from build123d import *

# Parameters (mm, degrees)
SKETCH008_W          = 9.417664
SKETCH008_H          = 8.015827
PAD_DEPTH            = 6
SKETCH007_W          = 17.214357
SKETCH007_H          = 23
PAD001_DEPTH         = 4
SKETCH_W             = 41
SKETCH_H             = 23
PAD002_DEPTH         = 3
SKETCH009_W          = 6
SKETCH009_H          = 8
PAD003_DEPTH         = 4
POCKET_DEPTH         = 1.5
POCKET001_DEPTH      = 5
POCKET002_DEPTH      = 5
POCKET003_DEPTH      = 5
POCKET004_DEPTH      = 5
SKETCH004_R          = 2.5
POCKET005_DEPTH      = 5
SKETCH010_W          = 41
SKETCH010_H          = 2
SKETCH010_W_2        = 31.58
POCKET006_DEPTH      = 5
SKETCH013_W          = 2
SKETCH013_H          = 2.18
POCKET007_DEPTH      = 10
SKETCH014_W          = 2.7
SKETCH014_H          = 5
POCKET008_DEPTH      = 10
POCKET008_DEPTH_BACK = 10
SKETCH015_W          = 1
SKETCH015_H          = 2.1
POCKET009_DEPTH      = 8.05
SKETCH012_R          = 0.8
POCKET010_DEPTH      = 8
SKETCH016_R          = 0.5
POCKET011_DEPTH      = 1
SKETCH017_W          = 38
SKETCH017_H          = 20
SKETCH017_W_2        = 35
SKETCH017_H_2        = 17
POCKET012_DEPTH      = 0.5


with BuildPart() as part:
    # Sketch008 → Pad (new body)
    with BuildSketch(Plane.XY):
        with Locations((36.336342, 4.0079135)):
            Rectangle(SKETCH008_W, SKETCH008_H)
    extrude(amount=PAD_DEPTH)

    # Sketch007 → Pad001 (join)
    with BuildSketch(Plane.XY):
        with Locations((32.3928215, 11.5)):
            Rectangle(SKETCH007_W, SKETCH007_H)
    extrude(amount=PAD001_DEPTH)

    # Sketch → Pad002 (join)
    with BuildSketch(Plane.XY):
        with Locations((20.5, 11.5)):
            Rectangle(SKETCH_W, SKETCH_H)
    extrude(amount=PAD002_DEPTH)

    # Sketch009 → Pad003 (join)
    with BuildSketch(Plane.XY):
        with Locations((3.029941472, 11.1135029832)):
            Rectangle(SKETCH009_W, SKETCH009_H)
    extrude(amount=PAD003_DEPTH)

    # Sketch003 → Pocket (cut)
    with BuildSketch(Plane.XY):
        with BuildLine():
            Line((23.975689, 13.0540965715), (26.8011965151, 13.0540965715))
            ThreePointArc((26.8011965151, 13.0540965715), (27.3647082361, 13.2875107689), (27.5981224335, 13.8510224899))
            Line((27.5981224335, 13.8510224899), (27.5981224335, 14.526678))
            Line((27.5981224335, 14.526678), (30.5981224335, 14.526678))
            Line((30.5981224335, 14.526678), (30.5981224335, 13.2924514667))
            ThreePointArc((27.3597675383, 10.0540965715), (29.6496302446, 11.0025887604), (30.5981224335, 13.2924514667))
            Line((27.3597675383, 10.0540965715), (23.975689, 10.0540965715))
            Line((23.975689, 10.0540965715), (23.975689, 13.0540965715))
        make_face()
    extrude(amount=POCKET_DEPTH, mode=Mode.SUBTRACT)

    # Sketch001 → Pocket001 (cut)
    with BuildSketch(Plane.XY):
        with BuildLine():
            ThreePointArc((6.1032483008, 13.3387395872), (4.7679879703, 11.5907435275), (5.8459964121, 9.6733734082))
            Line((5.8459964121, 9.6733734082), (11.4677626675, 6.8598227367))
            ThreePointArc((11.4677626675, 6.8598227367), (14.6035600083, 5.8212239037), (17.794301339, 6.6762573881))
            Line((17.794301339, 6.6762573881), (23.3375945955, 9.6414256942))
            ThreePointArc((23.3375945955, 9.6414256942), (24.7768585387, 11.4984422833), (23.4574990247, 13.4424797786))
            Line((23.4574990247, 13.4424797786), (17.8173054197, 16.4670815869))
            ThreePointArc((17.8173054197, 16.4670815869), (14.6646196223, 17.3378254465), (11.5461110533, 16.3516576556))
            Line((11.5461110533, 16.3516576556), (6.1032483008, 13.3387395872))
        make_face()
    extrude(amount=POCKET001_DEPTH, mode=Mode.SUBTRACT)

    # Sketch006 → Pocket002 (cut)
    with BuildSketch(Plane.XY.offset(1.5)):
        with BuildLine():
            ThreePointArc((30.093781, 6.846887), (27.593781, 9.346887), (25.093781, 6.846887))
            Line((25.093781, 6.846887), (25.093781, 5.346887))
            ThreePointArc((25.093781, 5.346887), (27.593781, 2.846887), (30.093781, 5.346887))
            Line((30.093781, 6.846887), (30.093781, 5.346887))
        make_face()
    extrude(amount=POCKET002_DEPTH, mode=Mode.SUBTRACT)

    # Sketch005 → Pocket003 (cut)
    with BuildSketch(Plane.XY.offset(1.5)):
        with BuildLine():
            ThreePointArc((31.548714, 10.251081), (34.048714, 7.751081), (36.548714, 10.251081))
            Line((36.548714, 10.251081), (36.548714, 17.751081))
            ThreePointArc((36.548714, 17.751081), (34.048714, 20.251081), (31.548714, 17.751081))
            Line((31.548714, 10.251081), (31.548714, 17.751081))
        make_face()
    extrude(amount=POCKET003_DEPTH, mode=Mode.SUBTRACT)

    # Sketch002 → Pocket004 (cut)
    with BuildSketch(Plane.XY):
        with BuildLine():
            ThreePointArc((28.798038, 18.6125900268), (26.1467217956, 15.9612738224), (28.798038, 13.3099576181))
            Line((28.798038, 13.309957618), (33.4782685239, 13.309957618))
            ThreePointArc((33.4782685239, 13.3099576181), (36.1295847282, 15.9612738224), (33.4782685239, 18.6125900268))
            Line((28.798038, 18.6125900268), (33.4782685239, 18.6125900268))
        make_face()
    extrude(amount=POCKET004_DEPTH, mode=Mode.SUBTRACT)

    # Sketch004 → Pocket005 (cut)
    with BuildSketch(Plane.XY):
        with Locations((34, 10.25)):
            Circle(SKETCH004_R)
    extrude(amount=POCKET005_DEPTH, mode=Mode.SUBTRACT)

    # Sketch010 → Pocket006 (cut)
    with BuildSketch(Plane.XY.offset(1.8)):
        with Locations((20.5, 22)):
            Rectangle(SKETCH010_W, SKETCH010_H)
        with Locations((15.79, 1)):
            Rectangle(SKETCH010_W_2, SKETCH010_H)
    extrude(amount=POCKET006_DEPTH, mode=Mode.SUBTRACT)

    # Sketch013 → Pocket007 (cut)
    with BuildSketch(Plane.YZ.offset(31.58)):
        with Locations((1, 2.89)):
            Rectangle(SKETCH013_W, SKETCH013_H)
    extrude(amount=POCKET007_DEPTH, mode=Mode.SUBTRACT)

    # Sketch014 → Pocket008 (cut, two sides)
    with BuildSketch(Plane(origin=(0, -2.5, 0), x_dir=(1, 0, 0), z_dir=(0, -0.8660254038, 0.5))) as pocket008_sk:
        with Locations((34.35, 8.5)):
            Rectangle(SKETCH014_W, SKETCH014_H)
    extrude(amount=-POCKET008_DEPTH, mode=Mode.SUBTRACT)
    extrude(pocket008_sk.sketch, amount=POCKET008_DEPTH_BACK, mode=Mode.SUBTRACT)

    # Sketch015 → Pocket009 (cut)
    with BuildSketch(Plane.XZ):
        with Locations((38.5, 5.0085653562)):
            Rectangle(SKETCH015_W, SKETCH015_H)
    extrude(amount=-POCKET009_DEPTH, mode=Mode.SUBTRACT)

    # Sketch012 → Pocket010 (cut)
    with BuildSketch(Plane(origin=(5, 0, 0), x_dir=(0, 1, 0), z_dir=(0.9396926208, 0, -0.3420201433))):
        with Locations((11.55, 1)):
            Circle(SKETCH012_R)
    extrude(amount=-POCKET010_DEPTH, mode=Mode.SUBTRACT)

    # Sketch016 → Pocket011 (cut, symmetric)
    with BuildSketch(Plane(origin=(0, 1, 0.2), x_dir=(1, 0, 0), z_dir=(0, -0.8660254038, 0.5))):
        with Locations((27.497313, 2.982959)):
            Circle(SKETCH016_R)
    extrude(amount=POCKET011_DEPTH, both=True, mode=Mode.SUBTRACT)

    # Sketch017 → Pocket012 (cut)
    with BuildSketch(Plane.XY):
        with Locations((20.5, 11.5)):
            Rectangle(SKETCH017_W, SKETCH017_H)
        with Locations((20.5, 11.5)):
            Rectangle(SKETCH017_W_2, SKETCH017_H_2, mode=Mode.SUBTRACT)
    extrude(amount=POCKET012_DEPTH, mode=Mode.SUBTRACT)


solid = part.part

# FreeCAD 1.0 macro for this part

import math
import FreeCAD as App
import Part
import Sketcher

V = App.Vector
Q = App.Units.Quantity


def add_polygon(sketch, points):
    """Adds a closed chain of lines whose ends are joined by coincident constraints."""
    first, n = sketch.GeometryCount, len(points)
    for a, b in zip(points, points[1:] + points[:1]):
        sketch.addGeometry(Part.LineSegment(App.Vector(*a, 0), App.Vector(*b, 0)), False)
    for i in range(n):
        sketch.addConstraint(Sketcher.Constraint("Coincident", first + i, 2, first + (i + 1) % n, 1))

doc = App.newDocument("Part")
body = doc.addObject("PartDesign::Body", "Body")

sketch1 = body.newObject("Sketcher::SketchObject", "Sketch")
sketch1.AttachmentSupport = (doc.getObject("XY_Plane"), [""])
sketch1.MapMode = "FlatFace"
add_polygon(sketch1, [(31.62751, 8.015827), (31.62751, 0), (41.045174, 0), (41.045174, 8.015827)])
sketch1.addConstraint([
    Sketcher.Constraint("Vertical", 0),
    Sketcher.Constraint("Horizontal", 1),
    Sketcher.Constraint("Vertical", 2),
    Sketcher.Constraint("Horizontal", 3),
    Sketcher.Constraint("PointOnObject", 0, 2, -1),
    Sketcher.Constraint("DistanceX", 1, 1, 1, 2, Q("9.417664 mm")),
    Sketcher.Constraint("DistanceY", 0, 2, 0, 1, Q("8.015827 mm")),
    Sketcher.Constraint("DistanceX", -1, 1, 0, 2, Q("31.62751 mm")),
])
pad1 = body.newObject("PartDesign::Pad", "Pad")
pad1.Profile = sketch1
pad1.Length = 6

sketch2 = body.newObject("Sketcher::SketchObject", "Sketch001")
sketch2.AttachmentSupport = (doc.getObject("XY_Plane"), [""])
sketch2.MapMode = "FlatFace"
add_polygon(sketch2, [(23.785643, 23), (23.785643, 0), (41, 0), (41, 23)])
sketch2.addConstraint([
    Sketcher.Constraint("Vertical", 0),
    Sketcher.Constraint("Horizontal", 1),
    Sketcher.Constraint("Vertical", 2),
    Sketcher.Constraint("Horizontal", 3),
    Sketcher.Constraint("PointOnObject", 0, 2, -1),
    Sketcher.Constraint("DistanceY", 0, 2, 0, 1, Q("23 mm")),
    Sketcher.Constraint("DistanceX", -1, 1, 1, 2, Q("41 mm")),
    Sketcher.Constraint("DistanceX", 1, 1, 1, 2, Q("17.214357 mm")),
])
pad2 = body.newObject("PartDesign::Pad", "Pad001")
pad2.Profile = sketch2
pad2.Length = 4

sketch3 = body.newObject("Sketcher::SketchObject", "Sketch002")
sketch3.AttachmentSupport = (doc.getObject("XY_Plane"), [""])
sketch3.MapMode = "FlatFace"
add_polygon(sketch3, [(0, 23), (0, 0), (41, 0), (41, 23)])
sketch3.addConstraint([
    Sketcher.Constraint("Vertical", 0),
    Sketcher.Constraint("Horizontal", 1),
    Sketcher.Constraint("Vertical", 2),
    Sketcher.Constraint("Horizontal", 3),
    Sketcher.Constraint("Coincident", 0, 2, -1, 1),
    Sketcher.Constraint("DistanceX", 1, 1, 1, 2, Q("41 mm")),
    Sketcher.Constraint("DistanceY", 0, 2, 0, 1, Q("23 mm")),
])
pad3 = body.newObject("PartDesign::Pad", "Pad002")
pad3.Profile = sketch3
pad3.Length = 3

sketch4 = body.newObject("Sketcher::SketchObject", "Sketch003")
sketch4.AttachmentSupport = (doc.getObject("XY_Plane"), [""])
sketch4.MapMode = "FlatFace"
add_polygon(sketch4, [(0.029941, 15.113503), (0.029941, 7.113503), (6.029941, 7.113503), (6.029941, 15.113503)])
sketch4.addConstraint([
    Sketcher.Constraint("Vertical", 0),
    Sketcher.Constraint("Horizontal", 1),
    Sketcher.Constraint("Vertical", 2),
    Sketcher.Constraint("Horizontal", 3),
    Sketcher.Constraint("DistanceX", 1, 1, 1, 2, Q("6 mm")),
    Sketcher.Constraint("DistanceY", 0, 2, 0, 1, Q("8 mm")),
    Sketcher.Constraint("DistanceX", -1, 1, 0, 2, Q("0.029941 mm")),
    Sketcher.Constraint("DistanceY", -1, 1, 0, 2, Q("7.113503 mm")),
])
pad4 = body.newObject("PartDesign::Pad", "Pad003")
pad4.Profile = sketch4
pad4.Length = 4

sketch5 = body.newObject("Sketcher::SketchObject", "Sketch004")
sketch5.AttachmentSupport = (doc.getObject("XY_Plane"), [""])
sketch5.MapMode = "FlatFace"
sketch5.addGeometry([
    Part.LineSegment(V(26.801197, 13.054097, 0), V(23.975689, 13.054097, 0)),
    Part.LineSegment(V(23.975689, 13.054097, 0), V(23.975689, 10.054097, 0)),
    Part.LineSegment(V(23.975689, 10.054097, 0), V(27.359768, 10.054097, 0)),
    Part.ArcOfCircle(Part.Circle(V(27.359768, 13.292451, 0), V(0, 0, 1), 3.238355), math.radians(-90), math.radians(0)),
    Part.LineSegment(V(30.598122, 13.292451, 0), V(30.598122, 14.526678, 0)),
    Part.LineSegment(V(30.598122, 14.526678, 0), V(27.598122, 14.526678, 0)),
    Part.LineSegment(V(27.598122, 14.526678, 0), V(27.598122, 13.851022, 0)),
    Part.ArcOfCircle(Part.Circle(V(26.801197, 13.851022, 0), V(0, 0, 1), 0.796926), math.radians(-90), math.radians(0)),
], False)
sketch5.addConstraint([
    Sketcher.Constraint("Coincident", 0, 2, 1, 1),
    Sketcher.Constraint("Coincident", 1, 2, 2, 1),
    Sketcher.Constraint("Tangent", 2, 2, 3, 1),
    Sketcher.Constraint("Tangent", 3, 2, 4, 1),
    Sketcher.Constraint("Coincident", 4, 2, 5, 1),
    Sketcher.Constraint("Coincident", 5, 2, 6, 1),
    Sketcher.Constraint("Tangent", 6, 2, 7, 2),
    Sketcher.Constraint("Tangent", 7, 1, 0, 1),
    Sketcher.Constraint("Horizontal", 0),
    Sketcher.Constraint("Vertical", 1),
    Sketcher.Constraint("Horizontal", 2),
    Sketcher.Constraint("Vertical", 4),
    Sketcher.Constraint("Horizontal", 5),
    Sketcher.Constraint("Vertical", 6),
    Sketcher.Constraint("Equal", 5, 1),
    Sketcher.Constraint("DistanceX", 5, 2, 5, 1, Q("3 mm")),
    Sketcher.Constraint("Radius", 3, Q("3.238355 mm")),
    Sketcher.Constraint("Radius", 7, Q("0.796926 mm")),
    Sketcher.Constraint("DistanceX", 2, 1, 2, 2, Q("3.384079 mm")),
    Sketcher.Constraint("DistanceY", 4, 1, 4, 2, Q("1.234227 mm")),
    Sketcher.Constraint("DistanceY", -1, 1, 3, 3, Q("13.292451 mm")),
    Sketcher.Constraint("DistanceX", -1, 1, 0, 2, Q("23.975689 mm")),
])
pocket1 = body.newObject("PartDesign::Pocket", "Pocket")
pocket1.Profile = sketch5
pocket1.Length = 1.5
pocket1.Reversed = True

sketch6 = body.newObject("Sketcher::SketchObject", "Sketch005")
sketch6.AttachmentSupport = (doc.getObject("XY_Plane"), [""])
sketch6.MapMode = "FlatFace"
sketch6.addGeometry([
    Part.ArcOfCircle(Part.Circle(V(6.76308, 11.450719, 0), V(0, 0, 1), 2), math.radians(109.263675), math.radians(242.70694)),
    Part.LineSegment(V(5.845996, 9.673373, 0), V(11.467763, 6.859823, 0)),
    Part.ArcOfCircle(Part.Circle(V(14.770617, 11.578801, 0), V(0, 0, 1), 5.76), math.radians(-124.988512), math.radians(-58.335444)),
    Part.LineSegment(V(17.794301, 6.676257, 0), V(23.337595, 9.641426, 0)),
    Part.ArcOfCircle(Part.Circle(V(22.777853, 11.561501, 0), V(0, 0, 1), 2), math.radians(-73.747503), math.radians(70.133905)),
    Part.LineSegment(V(23.457499, 13.44248, 0), V(17.817305, 16.467082, 0)),
    Part.ArcOfCircle(Part.Circle(V(14.770617, 11.578801, 0), V(0, 0, 1), 5.76), math.radians(58.066206), math.radians(124.042661)),
    Part.LineSegment(V(11.546111, 16.351658, 0), V(6.103248, 13.33874, 0)),
], False)
sketch6.addConstraint([
    Sketcher.Constraint("Coincident", 0, 2, 1, 1),
    Sketcher.Constraint("Coincident", 1, 2, 2, 1),
    Sketcher.Constraint("Coincident", 2, 2, 3, 1),
    Sketcher.Constraint("Coincident", 3, 2, 4, 1),
    Sketcher.Constraint("Coincident", 4, 2, 5, 1),
    Sketcher.Constraint("Coincident", 5, 2, 6, 1),
    Sketcher.Constraint("Coincident", 6, 2, 7, 1),
    Sketcher.Constraint("Coincident", 7, 2, 0, 1),
    Sketcher.Constraint("Coincident", 6, 3, 2, 3),
    Sketcher.Constraint("Equal", 0, 4),
    Sketcher.Constraint("Equal", 2, 6),
    Sketcher.Constraint("Equal", 1, 3),
    Sketcher.Constraint("Radius", 0, Q("2 mm")),
    Sketcher.Constraint("Radius", 2, Q("5.76 mm")),
    Sketcher.Constraint("Distance", 5, Q("6.4 mm")),
    Sketcher.Constraint("DistanceY", -1, 1, 2, 3, Q("11.578801 mm")),
    Sketcher.Constraint("DistanceY", -1, 1, 4, 3, Q("11.561501 mm")),
    Sketcher.Constraint("DistanceX", -1, 1, 2, 2, Q("17.794301 mm")),
    Sketcher.Constraint("DistanceX", -1, 1, 4, 2, Q("23.457499 mm")),
    Sketcher.Constraint("DistanceY", 4, 2, 5, 2, Q("3.024602 mm")),
    Sketcher.Constraint("Distance", 1, Q("6.286519 mm")),
    Sketcher.Constraint("DistanceX", -1, 1, 0, 3, Q("6.76308 mm")),
    Sketcher.Constraint("DistanceY", -1, 1, 0, 3, Q("11.450719 mm")),
    Sketcher.Constraint("DistanceY", -1, 1, 4, 2, Q("13.44248 mm")),
    Sketcher.Constraint("DistanceX", -1, 1, 6, 2, Q("11.546111 mm")),
    Sketcher.Constraint("DistanceX", -1, 1, 7, 2, Q("6.103248 mm")),
    Sketcher.Constraint("DistanceX", 0, 2, 2, 3, Q("8.92462 mm")),
])
pocket2 = body.newObject("PartDesign::Pocket", "Pocket001")
pocket2.Profile = sketch6
pocket2.Length = 5
pocket2.Reversed = True

sketch7 = body.newObject("Sketcher::SketchObject", "Sketch006")
sketch7.AttachmentSupport = (doc.getObject("XY_Plane"), [""])
sketch7.MapMode = "FlatFace"
sketch7.AttachmentOffset = App.Placement(V(0, 0, 1.5), App.Rotation())
sketch7.addGeometry([
    Part.ArcOfCircle(Part.Circle(V(27.593781, 6.846887, 0), V(0, 0, 1), 2.5), math.radians(0), math.radians(180)),
    Part.LineSegment(V(25.093781, 6.846887, 0), V(25.093781, 5.346887, 0)),
    Part.ArcOfCircle(Part.Circle(V(27.593781, 5.346887, 0), V(0, 0, 1), 2.5), math.radians(180), math.radians(360)),
    Part.LineSegment(V(30.093781, 5.346887, 0), V(30.093781, 6.846887, 0)),
], False)
sketch7.addConstraint([
    Sketcher.Constraint("Tangent", 0, 2, 1, 1),
    Sketcher.Constraint("Tangent", 1, 2, 2, 1),
    Sketcher.Constraint("Tangent", 2, 2, 3, 1),
    Sketcher.Constraint("Tangent", 3, 2, 0, 1),
    Sketcher.Constraint("Vertical", 1),
    Sketcher.Constraint("Vertical", 3),
    Sketcher.Constraint("Radius", 0, Q("2.5 mm")),
    Sketcher.Constraint("DistanceY", 1, 2, 1, 1, Q("1.5 mm")),
    Sketcher.Constraint("DistanceX", -1, 1, 0, 3, Q("27.593781 mm")),
    Sketcher.Constraint("DistanceY", -1, 1, 0, 3, Q("6.846887 mm")),
])
pocket3 = body.newObject("PartDesign::Pocket", "Pocket002")
pocket3.Profile = sketch7
pocket3.Length = 5
pocket3.Reversed = True

sketch8 = body.newObject("Sketcher::SketchObject", "Sketch007")
sketch8.AttachmentSupport = (doc.getObject("XY_Plane"), [""])
sketch8.MapMode = "FlatFace"
sketch8.AttachmentOffset = App.Placement(V(0, 0, 1.5), App.Rotation())
sketch8.addGeometry([
    Part.ArcOfCircle(Part.Circle(V(34.048714, 10.251081, 0), V(0, 0, 1), 2.5), math.radians(180), math.radians(360)),
    Part.LineSegment(V(36.548714, 10.251081, 0), V(36.548714, 17.751081, 0)),
    Part.ArcOfCircle(Part.Circle(V(34.048714, 17.751081, 0), V(0, 0, 1), 2.5), math.radians(0), math.radians(180)),
    Part.LineSegment(V(31.548714, 17.751081, 0), V(31.548714, 10.251081, 0)),
], False)
sketch8.addConstraint([
    Sketcher.Constraint("Tangent", 0, 2, 1, 1),
    Sketcher.Constraint("Tangent", 1, 2, 2, 1),
    Sketcher.Constraint("Tangent", 2, 2, 3, 1),
    Sketcher.Constraint("Tangent", 3, 2, 0, 1),
    Sketcher.Constraint("Vertical", 1),
    Sketcher.Constraint("Vertical", 3),
    Sketcher.Constraint("Radius", 0, Q("2.5 mm")),
    Sketcher.Constraint("DistanceY", 1, 1, 1, 2, Q("7.5 mm")),
    Sketcher.Constraint("DistanceY", -1, 1, 0, 3, Q("10.251081 mm")),
    Sketcher.Constraint("DistanceX", -1, 1, 0, 3, Q("34.048714 mm")),
])
pocket4 = body.newObject("PartDesign::Pocket", "Pocket003")
pocket4.Profile = sketch8
pocket4.Length = 5
pocket4.Reversed = True

sketch9 = body.newObject("Sketcher::SketchObject", "Sketch008")
sketch9.AttachmentSupport = (doc.getObject("XY_Plane"), [""])
sketch9.MapMode = "FlatFace"
sketch9.addGeometry([
    Part.ArcOfCircle(Part.Circle(V(28.798038, 15.961274, 0), V(0, 0, 1), 2.651316), math.radians(90), math.radians(270)),
    Part.LineSegment(V(28.798038, 13.309958, 0), V(33.478269, 13.309958, 0)),
    Part.ArcOfCircle(Part.Circle(V(33.478269, 15.961274, 0), V(0, 0, 1), 2.651316), math.radians(-90), math.radians(90)),
    Part.LineSegment(V(33.478269, 18.61259, 0), V(28.798038, 18.61259, 0)),
], False)
sketch9.addConstraint([
    Sketcher.Constraint("Tangent", 0, 2, 1, 1),
    Sketcher.Constraint("Tangent", 1, 2, 2, 1),
    Sketcher.Constraint("Tangent", 2, 2, 3, 1),
    Sketcher.Constraint("Tangent", 3, 2, 0, 1),
    Sketcher.Constraint("Horizontal", 1),
    Sketcher.Constraint("Horizontal", 3),
    Sketcher.Constraint("Radius", 0, Q("2.651316 mm")),
    Sketcher.Constraint("DistanceX", 1, 1, 1, 2, Q("4.680231 mm")),
    Sketcher.Constraint("DistanceX", -1, 1, 2, 3, Q("33.478269 mm")),
    Sketcher.Constraint("DistanceY", -1, 1, 2, 2, Q("18.61259 mm")),
])
pocket5 = body.newObject("PartDesign::Pocket", "Pocket004")
pocket5.Profile = sketch9
pocket5.Length = 5
pocket5.Reversed = True

sketch10 = body.newObject("Sketcher::SketchObject", "Sketch009")
sketch10.AttachmentSupport = (doc.getObject("XY_Plane"), [""])
sketch10.MapMode = "FlatFace"
sketch10.addGeometry(Part.Circle(V(34, 10.25, 0), V(0, 0, 1), 2.5), False)
sketch10.addConstraint([
    Sketcher.Constraint("Diameter", 0, Q("5 mm")),
    Sketcher.Constraint("DistanceX", -1, 1, 0, 3, Q("34 mm")),
    Sketcher.Constraint("DistanceY", -1, 1, 0, 3, Q("10.25 mm")),
])
pocket6 = body.newObject("PartDesign::Pocket", "Pocket005")
pocket6.Profile = sketch10
pocket6.Length = 5
pocket6.Reversed = True

sketch11 = body.newObject("Sketcher::SketchObject", "Sketch010")
sketch11.AttachmentSupport = (doc.getObject("XY_Plane"), [""])
sketch11.MapMode = "FlatFace"
sketch11.AttachmentOffset = App.Placement(V(0, 0, 1.8), App.Rotation())
add_polygon(sketch11, [(0, 23), (0, 21), (41, 21), (41, 23)])
add_polygon(sketch11, [(0, 2), (0, 0), (31.58, 0), (31.58, 2)])
sketch11.addConstraint([
    Sketcher.Constraint("Vertical", 0),
    Sketcher.Constraint("Horizontal", 1),
    Sketcher.Constraint("Vertical", 2),
    Sketcher.Constraint("Horizontal", 3),
    Sketcher.Constraint("Vertical", 4),
    Sketcher.Constraint("Horizontal", 5),
    Sketcher.Constraint("Vertical", 6),
    Sketcher.Constraint("Horizontal", 7),
    Sketcher.Constraint("Coincident", 4, 2, -1, 1),
    Sketcher.Constraint("PointOnObject", 0, 2, -2),
    Sketcher.Constraint("Equal", 2, 4),
    Sketcher.Constraint("DistanceX", 1, 1, 1, 2, Q("41 mm")),
    Sketcher.Constraint("DistanceY", 0, 2, 0, 1, Q("2 mm")),
    Sketcher.Constraint("DistanceY", -1, 1, 0, 2, Q("21 mm")),
    Sketcher.Constraint("DistanceX", 5, 1, 5, 2, Q("31.58 mm")),
])
pocket7 = body.newObject("PartDesign::Pocket", "Pocket006")
pocket7.Profile = sketch11
pocket7.Length = 5
pocket7.Reversed = True

sketch12 = body.newObject("Sketcher::SketchObject", "Sketch011")
sketch12.AttachmentSupport = (doc.getObject("YZ_Plane"), [""])
sketch12.MapMode = "FlatFace"
sketch12.AttachmentOffset = App.Placement(V(0, 0, 31.58), App.Rotation())
add_polygon(sketch12, [(0, 3.98), (0, 1.8), (2, 1.8), (2, 3.98)])
sketch12.addConstraint([
    Sketcher.Constraint("Vertical", 0),
    Sketcher.Constraint("Horizontal", 1),
    Sketcher.Constraint("Vertical", 2),
    Sketcher.Constraint("Horizontal", 3),
    Sketcher.Constraint("PointOnObject", 0, 2, -2),
    Sketcher.Constraint("DistanceX", 1, 1, 1, 2, Q("2 mm")),
    Sketcher.Constraint("DistanceY", 0, 2, 0, 1, Q("2.18 mm")),
    Sketcher.Constraint("DistanceY", -1, 1, 0, 2, Q("1.8 mm")),
])
pocket8 = body.newObject("PartDesign::Pocket", "Pocket007")
pocket8.Profile = sketch12
pocket8.Length = 10
pocket8.Reversed = True

sketch13 = body.newObject("Sketcher::SketchObject", "Sketch012")
sketch13.Placement = App.Placement(V(0, -2.5, 0), App.Rotation(V(1, 0, 0), V(0, 0.5, 0.866025404), V(0, -0.866025404, 0.5), "ZXY"))
add_polygon(sketch13, [(33, 11), (33, 6), (35.7, 6), (35.7, 11)])
sketch13.addConstraint([
    Sketcher.Constraint("Vertical", 0),
    Sketcher.Constraint("Horizontal", 1),
    Sketcher.Constraint("Vertical", 2),
    Sketcher.Constraint("Horizontal", 3),
    Sketcher.Constraint("DistanceY", 0, 2, 0, 1, Q("5 mm")),
    Sketcher.Constraint("DistanceX", 1, 1, 1, 2, Q("2.7 mm")),
    Sketcher.Constraint("DistanceX", -1, 1, 0, 2, Q("33 mm")),
    Sketcher.Constraint("DistanceY", -1, 1, 0, 2, Q("6 mm")),
])
pocket9 = body.newObject("PartDesign::Pocket", "Pocket008")
pocket9.Profile = sketch13
pocket9.Type = "TwoLengths"
pocket9.Length = 10
pocket9.Length2 = 10

sketch14 = body.newObject("Sketcher::SketchObject", "Sketch013")
sketch14.AttachmentSupport = (doc.getObject("XZ_Plane"), [""])
sketch14.MapMode = "FlatFace"
add_polygon(sketch14, [(38, 6.058565), (38, 3.958565), (39, 3.958565), (39, 6.058565)])
sketch14.addConstraint([
    Sketcher.Constraint("Vertical", 0),
    Sketcher.Constraint("Horizontal", 1),
    Sketcher.Constraint("Vertical", 2),
    Sketcher.Constraint("Horizontal", 3),
    Sketcher.Constraint("DistanceX", 1, 1, 1, 2, Q("1 mm")),
    Sketcher.Constraint("DistanceY", 0, 2, 0, 1, Q("2.1 mm")),
    Sketcher.Constraint("DistanceX", -1, 1, 0, 2, Q("38 mm")),
    Sketcher.Constraint("DistanceY", -1, 1, 0, 2, Q("3.958565 mm")),
])
pocket10 = body.newObject("PartDesign::Pocket", "Pocket009")
pocket10.Profile = sketch14
pocket10.Length = 8.05

sketch15 = body.newObject("Sketcher::SketchObject", "Sketch014")
sketch15.Placement = App.Placement(V(5, 0, 0), App.Rotation(V(0, 1, 0), V(0.342020143, 0, 0.939692621), V(0.939692621, 0, -0.342020143), "ZXY"))
sketch15.addGeometry(Part.Circle(V(11.55, 1, 0), V(0, 0, 1), 0.8), False)
sketch15.addConstraint([
    Sketcher.Constraint("Diameter", 0, Q("1.6 mm")),
    Sketcher.Constraint("DistanceY", -1, 1, 0, 3, Q("1 mm")),
    Sketcher.Constraint("DistanceX", -1, 1, 0, 3, Q("11.55 mm")),
])
pocket11 = body.newObject("PartDesign::Pocket", "Pocket010")
pocket11.Profile = sketch15
pocket11.Length = 8

sketch16 = body.newObject("Sketcher::SketchObject", "Sketch015")
sketch16.Placement = App.Placement(V(0, 1, 0.2), App.Rotation(V(1, 0, 0), V(0, 0.5, 0.866025404), V(0, -0.866025404, 0.5), "ZXY"))
sketch16.addGeometry(Part.Circle(V(27.497313, 2.982959, 0), V(0, 0, 1), 0.5), False)
sketch16.addConstraint([
    Sketcher.Constraint("Diameter", 0, Q("1 mm")),
    Sketcher.Constraint("DistanceY", -1, 1, 0, 3, Q("2.982959 mm")),
    Sketcher.Constraint("DistanceX", -1, 1, 0, 3, Q("27.497313 mm")),
])
pocket12 = body.newObject("PartDesign::Pocket", "Pocket011")
pocket12.Profile = sketch16
pocket12.Length = 2
pocket12.Midplane = True

sketch17 = body.newObject("Sketcher::SketchObject", "Sketch016")
sketch17.AttachmentSupport = (doc.getObject("XY_Plane"), [""])
sketch17.MapMode = "FlatFace"
add_polygon(sketch17, [(1.5, 21.5), (1.5, 1.5), (39.5, 1.5), (39.5, 21.5)])
add_polygon(sketch17, [(38, 3), (3, 3), (3, 20), (38, 20)])
sketch17.addConstraint([
    Sketcher.Constraint("Vertical", 0),
    Sketcher.Constraint("Horizontal", 1),
    Sketcher.Constraint("Vertical", 2),
    Sketcher.Constraint("Horizontal", 3),
    Sketcher.Constraint("Horizontal", 4),
    Sketcher.Constraint("Vertical", 5),
    Sketcher.Constraint("Horizontal", 6),
    Sketcher.Constraint("Vertical", 7),
    Sketcher.Constraint("DistanceX", 1, 1, 1, 2, Q("38 mm")),
    Sketcher.Constraint("DistanceX", 4, 2, 4, 1, Q("35 mm")),
    Sketcher.Constraint("DistanceY", 0, 2, 0, 1, Q("20 mm")),
    Sketcher.Constraint("DistanceY", 5, 1, 5, 2, Q("17 mm")),
    Sketcher.Constraint("DistanceX", -1, 1, 4, 2, Q("3 mm")),
    Sketcher.Constraint("DistanceY", -1, 1, 4, 2, Q("3 mm")),
    Sketcher.Constraint("DistanceX", -1, 1, 0, 2, Q("1.5 mm")),
    Sketcher.Constraint("DistanceY", -1, 1, 0, 2, Q("1.5 mm")),
])
pocket13 = body.newObject("PartDesign::Pocket", "Pocket012")
pocket13.Profile = sketch17
pocket13.Length = 0.5
pocket13.Reversed = True

doc.recompute()
